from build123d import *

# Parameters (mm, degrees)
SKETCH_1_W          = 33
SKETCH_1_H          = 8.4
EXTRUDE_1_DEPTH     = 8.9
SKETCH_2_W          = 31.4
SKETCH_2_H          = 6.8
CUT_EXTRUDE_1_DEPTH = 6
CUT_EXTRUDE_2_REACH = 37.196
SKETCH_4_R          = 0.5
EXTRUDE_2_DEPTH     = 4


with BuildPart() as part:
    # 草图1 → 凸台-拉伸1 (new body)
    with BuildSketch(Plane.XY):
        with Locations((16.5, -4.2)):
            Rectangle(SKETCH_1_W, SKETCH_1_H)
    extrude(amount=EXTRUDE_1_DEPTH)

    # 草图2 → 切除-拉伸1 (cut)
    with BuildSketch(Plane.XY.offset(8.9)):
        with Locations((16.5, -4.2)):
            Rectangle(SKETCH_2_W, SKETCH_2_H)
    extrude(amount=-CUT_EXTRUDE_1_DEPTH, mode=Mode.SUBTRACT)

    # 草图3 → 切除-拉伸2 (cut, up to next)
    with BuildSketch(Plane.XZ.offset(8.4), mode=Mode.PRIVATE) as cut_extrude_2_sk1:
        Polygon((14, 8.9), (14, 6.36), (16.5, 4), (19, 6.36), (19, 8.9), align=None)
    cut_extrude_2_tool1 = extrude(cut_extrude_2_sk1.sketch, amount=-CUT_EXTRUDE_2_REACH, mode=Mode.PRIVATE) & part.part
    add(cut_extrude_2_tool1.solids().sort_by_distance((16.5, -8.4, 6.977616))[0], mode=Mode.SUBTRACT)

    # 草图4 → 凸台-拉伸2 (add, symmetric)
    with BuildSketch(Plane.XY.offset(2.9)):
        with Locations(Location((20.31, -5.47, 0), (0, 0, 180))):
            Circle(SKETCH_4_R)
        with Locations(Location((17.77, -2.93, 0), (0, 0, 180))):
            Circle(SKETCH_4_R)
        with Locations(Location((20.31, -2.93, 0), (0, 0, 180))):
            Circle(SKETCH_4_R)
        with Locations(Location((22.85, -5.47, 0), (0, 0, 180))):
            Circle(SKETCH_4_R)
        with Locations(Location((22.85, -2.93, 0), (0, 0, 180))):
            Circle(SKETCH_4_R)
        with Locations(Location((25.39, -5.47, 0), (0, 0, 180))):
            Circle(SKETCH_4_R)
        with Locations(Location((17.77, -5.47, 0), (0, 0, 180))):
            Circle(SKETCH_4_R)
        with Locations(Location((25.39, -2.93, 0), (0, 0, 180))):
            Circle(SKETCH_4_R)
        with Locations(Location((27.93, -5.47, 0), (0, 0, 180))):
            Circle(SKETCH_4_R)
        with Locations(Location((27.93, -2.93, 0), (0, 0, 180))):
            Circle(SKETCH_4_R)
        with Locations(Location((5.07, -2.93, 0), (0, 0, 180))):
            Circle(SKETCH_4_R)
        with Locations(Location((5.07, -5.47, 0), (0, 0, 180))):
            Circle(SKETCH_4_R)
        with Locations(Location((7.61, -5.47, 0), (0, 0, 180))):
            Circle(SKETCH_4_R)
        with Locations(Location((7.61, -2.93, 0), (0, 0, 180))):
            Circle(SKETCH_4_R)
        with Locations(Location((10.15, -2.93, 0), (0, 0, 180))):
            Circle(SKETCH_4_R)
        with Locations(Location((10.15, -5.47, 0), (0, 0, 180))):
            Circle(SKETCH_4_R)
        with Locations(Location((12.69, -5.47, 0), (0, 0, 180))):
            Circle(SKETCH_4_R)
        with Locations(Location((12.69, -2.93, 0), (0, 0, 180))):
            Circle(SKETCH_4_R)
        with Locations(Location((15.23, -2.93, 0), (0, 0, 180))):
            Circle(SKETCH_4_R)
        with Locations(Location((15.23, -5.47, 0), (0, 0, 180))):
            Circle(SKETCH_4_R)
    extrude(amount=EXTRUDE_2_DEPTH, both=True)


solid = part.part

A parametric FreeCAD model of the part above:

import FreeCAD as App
import Part
import Sketcher

V = App.Vector
Q = App.Units.Quantity

doc = App.newDocument("Part")
body = doc.addObject("PartDesign::Body", "Body")

sketch1 = doc.addObject("Sketcher::SketchObject", "Sketch")
body.addObject(sketch1)
sketch1.AttachmentSupport = (doc.XY_Plane, [""])
sketch1.MapMode = "FlatFace"
sketch1.addGeometry([
    Part.LineSegment(V(0, 0, 0), V(0, -8, 0)),
    Part.LineSegment(V(0, -8, 0), V(33, -8, 0)),
    Part.LineSegment(V(33, -8, 0), V(33, 0, 0)),
    Part.LineSegment(V(33, 0, 0), V(0, 0, 0)),
], False)
sketch1.addConstraint([
    Sketcher.Constraint("Coincident", 0, 2, 1, 1),
    Sketcher.Constraint("Coincident", 1, 2, 2, 1),
    Sketcher.Constraint("Coincident", 2, 2, 3, 1),
    Sketcher.Constraint("Coincident", 3, 2, 0, 1),
    Sketcher.Constraint("Vertical", 0),
    Sketcher.Constraint("Horizontal", 1),
    Sketcher.Constraint("Vertical", 2),
    Sketcher.Constraint("Horizontal", 3),
    Sketcher.Constraint("Coincident", 3, 2, -1, 1),
    Sketcher.Constraint("DistanceX", 1, 1, 1, 2, Q("33 mm")),
    Sketcher.Constraint("DistanceY", 0, 2, 0, 1, Q("8.4 mm")),
])
pad1 = doc.addObject("PartDesign::Pad", "Pad")
body.addObject(pad1)
pad1.Profile = sketch1
pad1.Length = 8.9

sketch2 = doc.addObject("Sketcher::SketchObject", "Sketch001")
body.addObject(sketch2)
sketch2.AttachmentSupport = (doc.XY_Plane, [""])
sketch2.MapMode = "FlatFace"
sketch2.AttachmentOffset = App.Placement(V(0, 0, 8.9), App.Rotation())
sketch2.addGeometry([
    Part.LineSegment(V(1, -1, 0), V(1, -8, 0)),
    Part.LineSegment(V(1, -8, 0), V(32, -8, 0)),
    Part.LineSegment(V(32, -8, 0), V(32, -1, 0)),
    Part.LineSegment(V(32, -1, 0), V(1, -1, 0)),
], False)
sketch2.addConstraint([
    Sketcher.Constraint("Coincident", 0, 2, 1, 1),
    Sketcher.Constraint("Coincident", 1, 2, 2, 1),
    Sketcher.Constraint("Coincident", 2, 2, 3, 1),
    Sketcher.Constraint("Coincident", 3, 2, 0, 1),
    Sketcher.Constraint("Vertical", 0),
    Sketcher.Constraint("Horizontal", 1),
    Sketcher.Constraint("Vertical", 2),
    Sketcher.Constraint("Horizontal", 3),
    Sketcher.Constraint("DistanceX", 1, 1, 1, 2, Q("31.4 mm")),
    Sketcher.Constraint("DistanceY", 0, 2, 0, 1, Q("6.8 mm")),
    Sketcher.Constraint("DistanceX", -1, 1, 0, 2, Q("0.8 mm")),
    Sketcher.Constraint("DistanceY", 0, 2, -1, 1, Q("7.6 mm")),
])
pocket1 = doc.addObject("PartDesign::Pocket", "Pocket")
body.addObject(pocket1)
pocket1.Profile = sketch2
pocket1.Length = 6

sketch3 = doc.addObject("Sketcher::SketchObject", "Sketch002")
body.addObject(sketch3)
sketch3.AttachmentSupport = (doc.XZ_Plane, [""])
sketch3.MapMode = "FlatFace"
sketch3.AttachmentOffset = App.Placement(V(0, 0, 8.4), App.Rotation())
sketch3.addGeometry([
    Part.LineSegment(V(14, 8.9, 0), V(14, 6.4, 0)),
    Part.LineSegment(V(14, 6.4, 0), V(16.5, 4, 0)),
    Part.LineSegment(V(16.5, 4, 0), V(19, 6.4, 0)),
    Part.LineSegment(V(19, 6.4, 0), V(19, 8.9, 0)),
    Part.LineSegment(V(19, 8.9, 0), V(14, 8.9, 0)),
], False)
sketch3.addConstraint([
    Sketcher.Constraint("Coincident", 0, 2, 1, 1),
    Sketcher.Constraint("Coincident", 1, 2, 2, 1),
    Sketcher.Constraint("Coincident", 2, 2, 3, 1),
    Sketcher.Constraint("Coincident", 3, 2, 4, 1),
    Sketcher.Constraint("Coincident", 4, 2, 0, 1),
    Sketcher.Constraint("Vertical", 0),
    Sketcher.Constraint("Vertical", 3),
    Sketcher.Constraint("Horizontal", 4),
    Sketcher.Constraint("Horizontal", 0, 2, 2, 2),
    Sketcher.Constraint("Equal", 1, 2),
    Sketcher.Constraint("DistanceX", 4, 2, 4, 1, Q("5 mm")),
    Sketcher.Constraint("DistanceX", -1, 1, 0, 2, Q("14 mm")),
    Sketcher.Constraint("DistanceY", -1, 1, 1, 2, Q("4 mm")),
    Sketcher.Constraint("DistanceY", 0, 2, 0, 1, Q("2.54 mm")),
    Sketcher.Constraint("DistanceY", -1, 1, 3, 2, Q("8.9 mm")),
])
pocket2 = doc.addObject("PartDesign::Pocket", "Pocket001")
body.addObject(pocket2)
pocket2.Profile = sketch3
pocket2.Type = "UpToFirst"

sketch4 = doc.addObject("Sketcher::SketchObject", "Sketch003")
body.addObject(sketch4)
sketch4.AttachmentSupport = (doc.XY_Plane, [""])
sketch4.MapMode = "FlatFace"
sketch4.AttachmentOffset = App.Placement(V(0, 0, 2.9), App.Rotation())
sketch4.addGeometry([
    Part.Circle(V(20.3, -5.5, 0), V(0, 0, 1), 0.5),
    Part.Circle(V(17.8, -2.9, 0), V(0, 0, 1), 0.5),
    Part.Circle(V(20.3, -2.9, 0), V(0, 0, 1), 0.5),
    Part.Circle(V(22.9, -5.5, 0), V(0, 0, 1), 0.5),
    Part.Circle(V(22.9, -2.9, 0), V(0, 0, 1), 0.5),
    Part.Circle(V(25.4, -5.5, 0), V(0, 0, 1), 0.5),
    Part.Circle(V(17.8, -5.5, 0), V(0, 0, 1), 0.5),
    Part.Circle(V(25.4, -2.9, 0), V(0, 0, 1), 0.5),
    Part.Circle(V(27.9, -5.5, 0), V(0, 0, 1), 0.5),
    Part.Circle(V(27.9, -2.9, 0), V(0, 0, 1), 0.5),
    Part.Circle(V(5.1, -2.9, 0), V(0, 0, 1), 0.5),
    Part.Circle(V(5.1, -5.5, 0), V(0, 0, 1), 0.5),
    Part.Circle(V(7.6, -5.5, 0), V(0, 0, 1), 0.5),
    Part.Circle(V(7.6, -2.9, 0), V(0, 0, 1), 0.5),
    Part.Circle(V(10.2, -2.9, 0), V(0, 0, 1), 0.5),
    Part.Circle(V(10.2, -5.5, 0), V(0, 0, 1), 0.5),
    Part.Circle(V(12.7, -5.5, 0), V(0, 0, 1), 0.5),
    Part.Circle(V(12.7, -2.9, 0), V(0, 0, 1), 0.5),
    Part.Circle(V(15.2, -2.9, 0), V(0, 0, 1), 0.5),
    Part.Circle(V(15.2, -5.5, 0), V(0, 0, 1), 0.5),
], False)
sketch4.addConstraint([
    Sketcher.Constraint("Equal", 0, 1),
    Sketcher.Constraint("Equal", 1, 2),
    Sketcher.Constraint("Equal", 2, 3),
    Sketcher.Constraint("Equal", 3, 4),
    Sketcher.Constraint("Equal", 4, 5),
    Sketcher.Constraint("Equal", 5, 6),
    Sketcher.Constraint("Equal", 6, 7),
    Sketcher.Constraint("Equal", 7, 8),
    Sketcher.Constraint("Equal", 8, 9),
    Sketcher.Constraint("Equal", 9, 10),
    Sketcher.Constraint("Equal", 10, 11),
    Sketcher.Constraint("Equal", 11, 12),
    Sketcher.Constraint("Equal", 12, 13),
    Sketcher.Constraint("Equal", 13, 14),
    Sketcher.Constraint("Equal", 14, 15),
    Sketcher.Constraint("Equal", 15, 16),
    Sketcher.Constraint("Equal", 16, 17),
    Sketcher.Constraint("Equal", 17, 18),
    Sketcher.Constraint("Equal", 18, 19),
    Sketcher.Constraint("Horizontal", 1, 3, 2, 3),
    Sketcher.Constraint("Horizontal", 0, 3, 3, 3),
    Sketcher.Constraint("Horizontal", 2, 3, 4, 3),
    Sketcher.Constraint("Horizontal", 3, 3, 5, 3),
    Sketcher.Constraint("Horizontal", 5, 3, 6, 3),
    Sketcher.Constraint("Horizontal", 4, 3, 7, 3),
    Sketcher.Constraint("Horizontal", 6, 3, 8, 3),
    Sketcher.Constraint("Horizontal", 7, 3, 9, 3),
    Sketcher.Constraint("Horizontal", 9, 3, 10, 3),
    Sketcher.Constraint("Horizontal", 8, 3, 11, 3),
    Sketcher.Constraint("Horizontal", 11, 3, 12, 3),
    Sketcher.Constraint("Horizontal", 10, 3, 13, 3),
    Sketcher.Constraint("Horizontal", 13, 3, 14, 3),
    Sketcher.Constraint("Horizontal", 12, 3, 15, 3),
    Sketcher.Constraint("Horizontal", 15, 3, 16, 3),
    Sketcher.Constraint("Horizontal", 14, 3, 17, 3),
    Sketcher.Constraint("Horizontal", 17, 3, 18, 3),
    Sketcher.Constraint("Horizontal", 16, 3, 19, 3),
    Sketcher.Constraint("Vertical", 0, 3, 2, 3),
    Sketcher.Constraint("Vertical", 3, 3, 4, 3),
    Sketcher.Constraint("Vertical", 1, 3, 6, 3),
    Sketcher.Constraint("Vertical", 5, 3, 7, 3),
    Sketcher.Constraint("Vertical", 8, 3, 9, 3),
    Sketcher.Constraint("Vertical", 10, 3, 11, 3),
    Sketcher.Constraint("Vertical", 12, 3, 13, 3),
    Sketcher.Constraint("Vertical", 14, 3, 15, 3),
    Sketcher.Constraint("Vertical", 16, 3, 17, 3),
    Sketcher.Constraint("Vertical", 18, 3, 19, 3),
    Sketcher.Constraint("Diameter", 0, Q("1 mm")),
    Sketcher.Constraint("DistanceX", 10, 3, 1, 3, Q("12.7 mm")),
    Sketcher.Constraint("DistanceX", 12, 3, 0, 3, Q("12.7 mm")),
    Sketcher.Constraint("DistanceX", -1, 1, 0, 3, Q("20.31 mm")),
    Sketcher.Constraint("DistanceY", 0, 3, -1, 1, Q("5.47 mm")),
    Sketcher.Constraint("DistanceX", -1, 1, 1, 3, Q("17.77 mm")),
    Sketcher.Constraint("DistanceY", 1, 3, -1, 1, Q("2.93 mm")),
    Sketcher.Constraint("DistanceX", -1, 1, 3, 3, Q("22.85 mm")),
    Sketcher.Constraint("DistanceX", -1, 1, 5, 3, Q("25.39 mm")),
    Sketcher.Constraint("DistanceX", -1, 1, 8, 3, Q("27.93 mm")),
    Sketcher.Constraint("DistanceX", -1, 1, 14, 3, Q("10.15 mm")),
    Sketcher.Constraint("DistanceX", -1, 1, 16, 3, Q("12.69 mm")),
    Sketcher.Constraint("DistanceX", -1, 1, 18, 3, Q("15.23 mm")),
])
pad2 = doc.addObject("PartDesign::Pad", "Pad001")
body.addObject(pad2)
pad2.Profile = sketch4
pad2.Length = 8
pad2.Midplane = True

doc.recompute()
